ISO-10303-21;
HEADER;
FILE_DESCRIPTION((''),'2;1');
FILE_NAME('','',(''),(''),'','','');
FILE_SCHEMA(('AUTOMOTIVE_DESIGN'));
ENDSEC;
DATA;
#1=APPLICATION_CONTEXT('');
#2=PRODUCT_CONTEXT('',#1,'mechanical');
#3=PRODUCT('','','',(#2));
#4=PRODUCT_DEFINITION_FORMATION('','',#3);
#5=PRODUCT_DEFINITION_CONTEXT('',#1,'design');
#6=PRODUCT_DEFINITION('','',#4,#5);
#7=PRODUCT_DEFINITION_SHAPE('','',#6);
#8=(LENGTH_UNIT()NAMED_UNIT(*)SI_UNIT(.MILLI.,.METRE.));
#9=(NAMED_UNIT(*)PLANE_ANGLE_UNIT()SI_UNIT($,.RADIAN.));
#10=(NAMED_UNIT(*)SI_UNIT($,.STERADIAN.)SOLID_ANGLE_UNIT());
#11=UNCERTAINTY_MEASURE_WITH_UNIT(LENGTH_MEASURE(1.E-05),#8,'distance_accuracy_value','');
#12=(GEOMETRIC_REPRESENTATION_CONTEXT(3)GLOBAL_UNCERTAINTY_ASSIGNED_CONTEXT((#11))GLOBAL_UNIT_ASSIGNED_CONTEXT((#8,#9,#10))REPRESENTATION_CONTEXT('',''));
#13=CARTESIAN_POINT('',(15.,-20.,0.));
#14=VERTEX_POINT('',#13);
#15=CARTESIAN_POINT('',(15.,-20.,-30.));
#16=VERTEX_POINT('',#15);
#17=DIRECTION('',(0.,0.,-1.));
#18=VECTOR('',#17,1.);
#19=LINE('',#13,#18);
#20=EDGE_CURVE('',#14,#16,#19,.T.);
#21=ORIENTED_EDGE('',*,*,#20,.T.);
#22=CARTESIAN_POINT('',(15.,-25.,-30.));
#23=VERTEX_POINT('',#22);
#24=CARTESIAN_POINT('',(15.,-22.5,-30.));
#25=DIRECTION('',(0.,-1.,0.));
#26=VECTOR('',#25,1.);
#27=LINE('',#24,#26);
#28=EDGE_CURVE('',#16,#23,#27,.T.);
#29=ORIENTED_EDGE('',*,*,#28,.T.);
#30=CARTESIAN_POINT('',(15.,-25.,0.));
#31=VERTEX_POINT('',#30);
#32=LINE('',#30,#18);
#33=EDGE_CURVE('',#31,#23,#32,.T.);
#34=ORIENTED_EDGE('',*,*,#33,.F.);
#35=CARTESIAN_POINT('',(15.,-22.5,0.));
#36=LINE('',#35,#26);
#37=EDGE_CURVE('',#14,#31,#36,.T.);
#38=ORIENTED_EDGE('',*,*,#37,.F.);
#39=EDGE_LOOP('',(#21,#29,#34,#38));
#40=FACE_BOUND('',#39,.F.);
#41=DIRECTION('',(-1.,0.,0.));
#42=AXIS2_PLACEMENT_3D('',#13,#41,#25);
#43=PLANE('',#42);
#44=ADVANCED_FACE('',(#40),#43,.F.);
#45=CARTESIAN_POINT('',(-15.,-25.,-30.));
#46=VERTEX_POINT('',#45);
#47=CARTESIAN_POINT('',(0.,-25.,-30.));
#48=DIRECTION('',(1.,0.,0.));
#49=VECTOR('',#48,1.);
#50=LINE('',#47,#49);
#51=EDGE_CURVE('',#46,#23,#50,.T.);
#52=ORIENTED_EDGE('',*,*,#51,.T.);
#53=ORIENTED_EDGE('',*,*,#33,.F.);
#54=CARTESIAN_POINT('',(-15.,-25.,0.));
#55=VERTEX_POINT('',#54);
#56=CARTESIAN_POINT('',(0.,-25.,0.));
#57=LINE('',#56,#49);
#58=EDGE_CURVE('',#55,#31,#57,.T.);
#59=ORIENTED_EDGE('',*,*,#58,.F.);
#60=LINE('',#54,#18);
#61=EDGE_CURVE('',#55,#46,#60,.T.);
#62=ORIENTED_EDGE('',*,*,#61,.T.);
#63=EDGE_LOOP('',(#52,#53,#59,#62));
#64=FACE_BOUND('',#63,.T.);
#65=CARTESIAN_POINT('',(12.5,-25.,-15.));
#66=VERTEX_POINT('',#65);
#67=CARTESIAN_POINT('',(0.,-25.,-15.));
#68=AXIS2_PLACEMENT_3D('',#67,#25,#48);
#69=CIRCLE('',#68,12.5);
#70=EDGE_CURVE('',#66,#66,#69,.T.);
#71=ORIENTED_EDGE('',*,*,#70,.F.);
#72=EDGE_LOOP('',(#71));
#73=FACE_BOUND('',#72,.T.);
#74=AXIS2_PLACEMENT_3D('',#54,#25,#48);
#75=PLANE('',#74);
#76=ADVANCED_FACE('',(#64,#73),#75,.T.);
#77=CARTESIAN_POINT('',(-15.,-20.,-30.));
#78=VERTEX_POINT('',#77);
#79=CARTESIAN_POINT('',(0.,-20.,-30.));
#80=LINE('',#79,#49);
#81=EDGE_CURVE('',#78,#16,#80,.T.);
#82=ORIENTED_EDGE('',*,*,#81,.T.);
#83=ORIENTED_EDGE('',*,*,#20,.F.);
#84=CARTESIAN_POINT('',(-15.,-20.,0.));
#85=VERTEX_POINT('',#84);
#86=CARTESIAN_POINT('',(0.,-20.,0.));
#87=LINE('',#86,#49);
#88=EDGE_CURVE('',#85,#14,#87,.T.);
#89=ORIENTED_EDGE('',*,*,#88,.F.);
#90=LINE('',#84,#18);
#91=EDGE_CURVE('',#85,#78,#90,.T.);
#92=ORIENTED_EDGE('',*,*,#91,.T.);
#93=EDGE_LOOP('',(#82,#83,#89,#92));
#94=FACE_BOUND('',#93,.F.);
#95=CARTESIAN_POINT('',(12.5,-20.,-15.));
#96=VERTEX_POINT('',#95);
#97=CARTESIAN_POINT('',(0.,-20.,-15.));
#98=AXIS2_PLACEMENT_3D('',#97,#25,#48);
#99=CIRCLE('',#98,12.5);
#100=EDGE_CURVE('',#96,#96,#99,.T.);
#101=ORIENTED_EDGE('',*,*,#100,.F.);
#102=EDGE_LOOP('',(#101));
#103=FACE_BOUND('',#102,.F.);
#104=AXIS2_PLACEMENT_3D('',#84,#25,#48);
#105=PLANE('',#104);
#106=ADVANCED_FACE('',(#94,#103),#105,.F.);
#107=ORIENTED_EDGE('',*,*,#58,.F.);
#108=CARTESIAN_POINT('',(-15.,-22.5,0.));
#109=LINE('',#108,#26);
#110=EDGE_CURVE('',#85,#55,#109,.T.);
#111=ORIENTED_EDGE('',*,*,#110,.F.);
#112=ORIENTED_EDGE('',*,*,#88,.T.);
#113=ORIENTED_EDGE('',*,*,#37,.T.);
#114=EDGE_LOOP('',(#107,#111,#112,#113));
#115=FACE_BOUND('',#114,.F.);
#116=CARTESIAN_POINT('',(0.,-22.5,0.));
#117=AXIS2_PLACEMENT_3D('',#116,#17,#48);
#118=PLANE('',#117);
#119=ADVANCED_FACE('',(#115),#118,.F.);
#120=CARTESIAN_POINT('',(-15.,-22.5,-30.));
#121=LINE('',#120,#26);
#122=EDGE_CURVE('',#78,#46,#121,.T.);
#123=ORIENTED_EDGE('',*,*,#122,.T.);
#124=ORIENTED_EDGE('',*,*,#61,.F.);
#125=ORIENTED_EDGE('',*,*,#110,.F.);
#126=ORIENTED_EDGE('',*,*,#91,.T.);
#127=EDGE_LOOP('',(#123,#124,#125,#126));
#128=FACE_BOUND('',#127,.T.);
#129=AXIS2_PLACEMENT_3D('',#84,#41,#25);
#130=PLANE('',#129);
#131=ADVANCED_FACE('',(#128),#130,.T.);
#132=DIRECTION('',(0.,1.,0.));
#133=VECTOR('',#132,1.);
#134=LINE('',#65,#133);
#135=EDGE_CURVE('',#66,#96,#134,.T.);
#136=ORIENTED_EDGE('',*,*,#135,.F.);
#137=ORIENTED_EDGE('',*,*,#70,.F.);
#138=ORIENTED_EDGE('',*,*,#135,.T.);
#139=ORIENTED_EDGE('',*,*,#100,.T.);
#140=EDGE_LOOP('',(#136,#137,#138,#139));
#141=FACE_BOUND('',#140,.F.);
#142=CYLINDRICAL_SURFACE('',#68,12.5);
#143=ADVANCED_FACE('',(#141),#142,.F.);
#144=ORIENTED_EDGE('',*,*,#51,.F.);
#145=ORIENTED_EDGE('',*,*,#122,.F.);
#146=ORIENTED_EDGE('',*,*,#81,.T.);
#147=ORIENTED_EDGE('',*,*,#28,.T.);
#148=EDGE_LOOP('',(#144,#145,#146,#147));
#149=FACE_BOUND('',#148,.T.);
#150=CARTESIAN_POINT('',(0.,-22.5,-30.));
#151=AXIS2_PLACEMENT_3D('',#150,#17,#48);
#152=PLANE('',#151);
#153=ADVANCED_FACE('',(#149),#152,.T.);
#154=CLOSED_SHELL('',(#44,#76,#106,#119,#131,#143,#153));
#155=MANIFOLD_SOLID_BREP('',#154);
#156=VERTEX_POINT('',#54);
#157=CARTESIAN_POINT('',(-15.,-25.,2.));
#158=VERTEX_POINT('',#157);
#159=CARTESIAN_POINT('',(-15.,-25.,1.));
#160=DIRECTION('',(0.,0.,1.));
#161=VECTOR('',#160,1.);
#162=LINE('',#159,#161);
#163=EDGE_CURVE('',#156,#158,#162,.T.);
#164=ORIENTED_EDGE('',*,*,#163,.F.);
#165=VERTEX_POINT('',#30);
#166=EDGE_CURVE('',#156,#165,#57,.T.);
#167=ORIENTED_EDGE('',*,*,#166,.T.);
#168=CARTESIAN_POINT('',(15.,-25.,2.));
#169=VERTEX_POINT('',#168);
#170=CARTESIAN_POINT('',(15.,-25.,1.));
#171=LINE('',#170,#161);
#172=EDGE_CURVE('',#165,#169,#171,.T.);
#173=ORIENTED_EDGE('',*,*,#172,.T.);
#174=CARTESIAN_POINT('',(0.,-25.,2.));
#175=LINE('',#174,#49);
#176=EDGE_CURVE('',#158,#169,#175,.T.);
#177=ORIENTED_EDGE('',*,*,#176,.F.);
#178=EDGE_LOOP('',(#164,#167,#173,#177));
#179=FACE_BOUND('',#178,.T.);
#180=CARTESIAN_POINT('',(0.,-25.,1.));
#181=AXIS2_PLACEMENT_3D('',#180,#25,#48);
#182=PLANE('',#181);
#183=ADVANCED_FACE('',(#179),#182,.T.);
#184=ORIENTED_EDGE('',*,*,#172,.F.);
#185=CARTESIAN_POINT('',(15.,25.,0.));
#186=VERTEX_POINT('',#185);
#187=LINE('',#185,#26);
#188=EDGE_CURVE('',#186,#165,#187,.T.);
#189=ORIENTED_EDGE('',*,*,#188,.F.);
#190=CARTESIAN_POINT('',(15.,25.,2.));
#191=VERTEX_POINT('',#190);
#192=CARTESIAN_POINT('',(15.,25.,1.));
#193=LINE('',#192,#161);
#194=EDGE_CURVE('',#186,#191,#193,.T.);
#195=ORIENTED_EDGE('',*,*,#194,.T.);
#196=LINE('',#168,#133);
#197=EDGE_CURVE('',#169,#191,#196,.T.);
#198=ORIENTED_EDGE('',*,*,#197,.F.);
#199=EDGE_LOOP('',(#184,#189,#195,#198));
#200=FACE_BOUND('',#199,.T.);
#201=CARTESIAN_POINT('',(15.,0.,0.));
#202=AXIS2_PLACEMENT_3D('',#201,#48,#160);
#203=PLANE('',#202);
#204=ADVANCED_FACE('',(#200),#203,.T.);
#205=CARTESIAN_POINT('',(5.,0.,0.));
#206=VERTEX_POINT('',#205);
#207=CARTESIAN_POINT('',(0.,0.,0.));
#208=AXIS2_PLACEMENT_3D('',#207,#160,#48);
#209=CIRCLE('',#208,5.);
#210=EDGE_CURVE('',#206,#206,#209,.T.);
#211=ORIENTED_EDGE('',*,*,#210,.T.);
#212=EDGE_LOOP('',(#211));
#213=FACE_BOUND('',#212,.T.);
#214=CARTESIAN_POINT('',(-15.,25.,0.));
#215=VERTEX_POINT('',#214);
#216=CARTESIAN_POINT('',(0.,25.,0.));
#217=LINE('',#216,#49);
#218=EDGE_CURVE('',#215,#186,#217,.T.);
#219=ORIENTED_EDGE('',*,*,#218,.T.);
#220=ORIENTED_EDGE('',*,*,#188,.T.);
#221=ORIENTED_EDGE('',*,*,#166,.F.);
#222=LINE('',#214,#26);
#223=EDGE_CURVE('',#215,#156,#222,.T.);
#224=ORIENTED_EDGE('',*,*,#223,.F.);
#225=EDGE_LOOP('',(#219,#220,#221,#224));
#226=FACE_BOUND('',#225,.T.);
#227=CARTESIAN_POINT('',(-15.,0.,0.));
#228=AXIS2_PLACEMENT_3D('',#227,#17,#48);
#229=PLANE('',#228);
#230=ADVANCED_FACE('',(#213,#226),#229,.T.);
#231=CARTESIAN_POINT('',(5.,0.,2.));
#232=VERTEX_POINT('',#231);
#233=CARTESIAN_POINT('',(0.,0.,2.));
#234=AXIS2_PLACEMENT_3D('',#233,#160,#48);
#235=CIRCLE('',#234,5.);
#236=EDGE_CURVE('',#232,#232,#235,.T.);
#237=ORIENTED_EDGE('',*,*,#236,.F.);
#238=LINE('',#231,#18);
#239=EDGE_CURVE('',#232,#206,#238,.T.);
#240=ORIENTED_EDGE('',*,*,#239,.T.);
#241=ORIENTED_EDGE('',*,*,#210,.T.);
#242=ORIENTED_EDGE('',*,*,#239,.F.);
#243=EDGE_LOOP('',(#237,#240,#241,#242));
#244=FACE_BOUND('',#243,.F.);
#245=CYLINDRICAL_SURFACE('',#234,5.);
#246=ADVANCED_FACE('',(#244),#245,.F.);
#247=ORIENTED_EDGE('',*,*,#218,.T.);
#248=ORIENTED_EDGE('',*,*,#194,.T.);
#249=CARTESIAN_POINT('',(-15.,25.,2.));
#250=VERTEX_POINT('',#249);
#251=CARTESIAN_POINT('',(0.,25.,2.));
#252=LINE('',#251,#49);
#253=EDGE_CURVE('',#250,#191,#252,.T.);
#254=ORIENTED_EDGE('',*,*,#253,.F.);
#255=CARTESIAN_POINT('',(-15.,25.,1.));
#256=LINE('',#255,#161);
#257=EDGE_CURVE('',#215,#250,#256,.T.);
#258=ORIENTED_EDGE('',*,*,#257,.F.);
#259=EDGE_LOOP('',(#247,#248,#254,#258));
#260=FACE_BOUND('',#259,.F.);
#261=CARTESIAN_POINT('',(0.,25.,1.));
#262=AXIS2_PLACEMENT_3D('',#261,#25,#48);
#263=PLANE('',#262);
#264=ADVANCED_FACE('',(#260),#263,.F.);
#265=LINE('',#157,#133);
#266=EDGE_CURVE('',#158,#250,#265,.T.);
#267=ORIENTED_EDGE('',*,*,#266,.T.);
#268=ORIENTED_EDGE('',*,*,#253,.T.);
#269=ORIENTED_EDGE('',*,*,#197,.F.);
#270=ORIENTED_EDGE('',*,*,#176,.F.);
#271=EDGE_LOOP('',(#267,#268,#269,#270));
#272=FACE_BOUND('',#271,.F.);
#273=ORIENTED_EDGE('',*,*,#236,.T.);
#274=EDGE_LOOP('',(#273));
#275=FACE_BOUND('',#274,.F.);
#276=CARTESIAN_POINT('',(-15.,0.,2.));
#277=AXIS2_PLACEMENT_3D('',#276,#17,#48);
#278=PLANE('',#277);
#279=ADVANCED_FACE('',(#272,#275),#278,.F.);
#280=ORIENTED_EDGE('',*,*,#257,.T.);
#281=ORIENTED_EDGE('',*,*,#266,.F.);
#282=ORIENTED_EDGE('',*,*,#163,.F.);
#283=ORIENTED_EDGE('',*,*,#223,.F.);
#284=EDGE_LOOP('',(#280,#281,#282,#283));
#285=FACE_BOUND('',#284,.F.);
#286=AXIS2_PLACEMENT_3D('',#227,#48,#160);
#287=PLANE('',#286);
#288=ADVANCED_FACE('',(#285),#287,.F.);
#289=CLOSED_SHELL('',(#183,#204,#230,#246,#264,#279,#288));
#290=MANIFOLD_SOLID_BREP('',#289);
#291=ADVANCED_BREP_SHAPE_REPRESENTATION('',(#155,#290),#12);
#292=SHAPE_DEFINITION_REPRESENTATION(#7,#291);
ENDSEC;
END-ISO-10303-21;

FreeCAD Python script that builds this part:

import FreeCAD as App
import Part
import Sketcher

V = App.Vector


def add_polygon(sketch, points):
    """Adds a closed chain of lines whose ends are joined by coincident constraints."""
    first, n = sketch.GeometryCount, len(points)
    for a, b in zip(points, points[1:] + points[:1]):
        sketch.addGeometry(Part.LineSegment(App.Vector(*a, 0), App.Vector(*b, 0)), False)
    for i in range(n):
        sketch.addConstraint(Sketcher.Constraint("Coincident", first + i, 2, first + (i + 1) % n, 1))

doc = App.newDocument("Part")
body = doc.addObject("PartDesign::Body", "Body")

sketch1 = doc.addObject("Sketcher::SketchObject", "Sketch")
body.addObject(sketch1)
sketch1.AttachmentSupport = (doc.XZ_Plane, [""])
sketch1.MapMode = "FlatFace"
add_polygon(sketch1, [(-15, 2), (-15, 0), (15, 0), (15, 2)])
sketch1.addConstraint(Sketcher.Constraint("Vertical", 0))
sketch1.addConstraint(Sketcher.Constraint("Horizontal", 1))
sketch1.addConstraint(Sketcher.Constraint("Vertical", 2))
sketch1.addConstraint(Sketcher.Constraint("Horizontal", 3))
sketch1.addConstraint(Sketcher.Constraint("Symmetric", 0, 2, 1, 2, -1, 1))
sketch1.addConstraint(Sketcher.Constraint("DistanceX", 1, 1, 1, 2, 30.0))
sketch1.addConstraint(Sketcher.Constraint("DistanceY", 0, 2, 0, 1, 2.0))
pad1 = doc.addObject("PartDesign::Pad", "Pad")
body.addObject(pad1)
pad1.Profile = sketch1
pad1.Length = 50
pad1.Midplane = True

sketch2 = doc.addObject("Sketcher::SketchObject", "Sketch001")
body.addObject(sketch2)
sketch2.AttachmentSupport = (doc.XY_Plane, [""])
sketch2.MapMode = "FlatFace"
sketch2.AttachmentOffset = App.Placement(V(0, 0, 2), App.Rotation())
sketch2.addGeometry(Part.Circle(V(0, 0, 0), V(0, 0, 1), 5), False)
sketch2.addConstraint(Sketcher.Constraint("Coincident", 0, 3, -1, 1))
sketch2.addConstraint(Sketcher.Constraint("Diameter", 0, 10.0))
pocket1 = doc.addObject("PartDesign::Pocket", "Pocket")
body.addObject(pocket1)
pocket1.Profile = sketch2
pocket1.Type = "ThroughAll"
body2 = doc.addObject("PartDesign::Body", "Body001")

sketch3 = doc.addObject("Sketcher::SketchObject", "Sketch002")
body2.addObject(sketch3)
sketch3.AttachmentSupport = (doc.getObject("XY_Plane001"), [""])
sketch3.MapMode = "FlatFace"
add_polygon(sketch3, [(-15, -25), (-15, -20), (15, -20), (15, -25)])
sketch3.addConstraint(Sketcher.Constraint("Vertical", 0))
sketch3.addConstraint(Sketcher.Constraint("Horizontal", 1))
sketch3.addConstraint(Sketcher.Constraint("Vertical", 2))
sketch3.addConstraint(Sketcher.Constraint("Horizontal", 3))
sketch3.addConstraint(Sketcher.Constraint("DistanceX", 1, 1, 1, 2, 30.0))
sketch3.addConstraint(Sketcher.Constraint("DistanceY", 0, 1, 0, 2, 5.0))
sketch3.addConstraint(Sketcher.Constraint("DistanceX", 0, 2, -1, 1, 15.0))
sketch3.addConstraint(Sketcher.Constraint("DistanceY", 0, 2, -1, 1, 20.0))
pad2 = doc.addObject("PartDesign::Pad", "Pad001")
body2.addObject(pad2)
pad2.Profile = sketch3
pad2.Length = 30
pad2.Reversed = True

sketch4 = doc.addObject("Sketcher::SketchObject", "Sketch003")
body2.addObject(sketch4)
sketch4.AttachmentSupport = (doc.getObject("XZ_Plane001"), [""])
sketch4.MapMode = "FlatFace"
sketch4.AttachmentOffset = App.Placement(V(0, 0, 25), App.Rotation())
sketch4.addGeometry(Part.Circle(V(0, -15, 0), V(0, 0, 1), 12), False)
sketch4.addConstraint(Sketcher.Constraint("PointOnObject", 0, 3, -2))
sketch4.addConstraint(Sketcher.Constraint("Diameter", 0, 25.0))
sketch4.addConstraint(Sketcher.Constraint("DistanceY", 0, 3, -1, 1, 15.0))
pocket2 = doc.addObject("PartDesign::Pocket", "Pocket001")
body2.addObject(pocket2)
pocket2.Profile = sketch4
pocket2.Type = "ThroughAll"

doc.recompute()
